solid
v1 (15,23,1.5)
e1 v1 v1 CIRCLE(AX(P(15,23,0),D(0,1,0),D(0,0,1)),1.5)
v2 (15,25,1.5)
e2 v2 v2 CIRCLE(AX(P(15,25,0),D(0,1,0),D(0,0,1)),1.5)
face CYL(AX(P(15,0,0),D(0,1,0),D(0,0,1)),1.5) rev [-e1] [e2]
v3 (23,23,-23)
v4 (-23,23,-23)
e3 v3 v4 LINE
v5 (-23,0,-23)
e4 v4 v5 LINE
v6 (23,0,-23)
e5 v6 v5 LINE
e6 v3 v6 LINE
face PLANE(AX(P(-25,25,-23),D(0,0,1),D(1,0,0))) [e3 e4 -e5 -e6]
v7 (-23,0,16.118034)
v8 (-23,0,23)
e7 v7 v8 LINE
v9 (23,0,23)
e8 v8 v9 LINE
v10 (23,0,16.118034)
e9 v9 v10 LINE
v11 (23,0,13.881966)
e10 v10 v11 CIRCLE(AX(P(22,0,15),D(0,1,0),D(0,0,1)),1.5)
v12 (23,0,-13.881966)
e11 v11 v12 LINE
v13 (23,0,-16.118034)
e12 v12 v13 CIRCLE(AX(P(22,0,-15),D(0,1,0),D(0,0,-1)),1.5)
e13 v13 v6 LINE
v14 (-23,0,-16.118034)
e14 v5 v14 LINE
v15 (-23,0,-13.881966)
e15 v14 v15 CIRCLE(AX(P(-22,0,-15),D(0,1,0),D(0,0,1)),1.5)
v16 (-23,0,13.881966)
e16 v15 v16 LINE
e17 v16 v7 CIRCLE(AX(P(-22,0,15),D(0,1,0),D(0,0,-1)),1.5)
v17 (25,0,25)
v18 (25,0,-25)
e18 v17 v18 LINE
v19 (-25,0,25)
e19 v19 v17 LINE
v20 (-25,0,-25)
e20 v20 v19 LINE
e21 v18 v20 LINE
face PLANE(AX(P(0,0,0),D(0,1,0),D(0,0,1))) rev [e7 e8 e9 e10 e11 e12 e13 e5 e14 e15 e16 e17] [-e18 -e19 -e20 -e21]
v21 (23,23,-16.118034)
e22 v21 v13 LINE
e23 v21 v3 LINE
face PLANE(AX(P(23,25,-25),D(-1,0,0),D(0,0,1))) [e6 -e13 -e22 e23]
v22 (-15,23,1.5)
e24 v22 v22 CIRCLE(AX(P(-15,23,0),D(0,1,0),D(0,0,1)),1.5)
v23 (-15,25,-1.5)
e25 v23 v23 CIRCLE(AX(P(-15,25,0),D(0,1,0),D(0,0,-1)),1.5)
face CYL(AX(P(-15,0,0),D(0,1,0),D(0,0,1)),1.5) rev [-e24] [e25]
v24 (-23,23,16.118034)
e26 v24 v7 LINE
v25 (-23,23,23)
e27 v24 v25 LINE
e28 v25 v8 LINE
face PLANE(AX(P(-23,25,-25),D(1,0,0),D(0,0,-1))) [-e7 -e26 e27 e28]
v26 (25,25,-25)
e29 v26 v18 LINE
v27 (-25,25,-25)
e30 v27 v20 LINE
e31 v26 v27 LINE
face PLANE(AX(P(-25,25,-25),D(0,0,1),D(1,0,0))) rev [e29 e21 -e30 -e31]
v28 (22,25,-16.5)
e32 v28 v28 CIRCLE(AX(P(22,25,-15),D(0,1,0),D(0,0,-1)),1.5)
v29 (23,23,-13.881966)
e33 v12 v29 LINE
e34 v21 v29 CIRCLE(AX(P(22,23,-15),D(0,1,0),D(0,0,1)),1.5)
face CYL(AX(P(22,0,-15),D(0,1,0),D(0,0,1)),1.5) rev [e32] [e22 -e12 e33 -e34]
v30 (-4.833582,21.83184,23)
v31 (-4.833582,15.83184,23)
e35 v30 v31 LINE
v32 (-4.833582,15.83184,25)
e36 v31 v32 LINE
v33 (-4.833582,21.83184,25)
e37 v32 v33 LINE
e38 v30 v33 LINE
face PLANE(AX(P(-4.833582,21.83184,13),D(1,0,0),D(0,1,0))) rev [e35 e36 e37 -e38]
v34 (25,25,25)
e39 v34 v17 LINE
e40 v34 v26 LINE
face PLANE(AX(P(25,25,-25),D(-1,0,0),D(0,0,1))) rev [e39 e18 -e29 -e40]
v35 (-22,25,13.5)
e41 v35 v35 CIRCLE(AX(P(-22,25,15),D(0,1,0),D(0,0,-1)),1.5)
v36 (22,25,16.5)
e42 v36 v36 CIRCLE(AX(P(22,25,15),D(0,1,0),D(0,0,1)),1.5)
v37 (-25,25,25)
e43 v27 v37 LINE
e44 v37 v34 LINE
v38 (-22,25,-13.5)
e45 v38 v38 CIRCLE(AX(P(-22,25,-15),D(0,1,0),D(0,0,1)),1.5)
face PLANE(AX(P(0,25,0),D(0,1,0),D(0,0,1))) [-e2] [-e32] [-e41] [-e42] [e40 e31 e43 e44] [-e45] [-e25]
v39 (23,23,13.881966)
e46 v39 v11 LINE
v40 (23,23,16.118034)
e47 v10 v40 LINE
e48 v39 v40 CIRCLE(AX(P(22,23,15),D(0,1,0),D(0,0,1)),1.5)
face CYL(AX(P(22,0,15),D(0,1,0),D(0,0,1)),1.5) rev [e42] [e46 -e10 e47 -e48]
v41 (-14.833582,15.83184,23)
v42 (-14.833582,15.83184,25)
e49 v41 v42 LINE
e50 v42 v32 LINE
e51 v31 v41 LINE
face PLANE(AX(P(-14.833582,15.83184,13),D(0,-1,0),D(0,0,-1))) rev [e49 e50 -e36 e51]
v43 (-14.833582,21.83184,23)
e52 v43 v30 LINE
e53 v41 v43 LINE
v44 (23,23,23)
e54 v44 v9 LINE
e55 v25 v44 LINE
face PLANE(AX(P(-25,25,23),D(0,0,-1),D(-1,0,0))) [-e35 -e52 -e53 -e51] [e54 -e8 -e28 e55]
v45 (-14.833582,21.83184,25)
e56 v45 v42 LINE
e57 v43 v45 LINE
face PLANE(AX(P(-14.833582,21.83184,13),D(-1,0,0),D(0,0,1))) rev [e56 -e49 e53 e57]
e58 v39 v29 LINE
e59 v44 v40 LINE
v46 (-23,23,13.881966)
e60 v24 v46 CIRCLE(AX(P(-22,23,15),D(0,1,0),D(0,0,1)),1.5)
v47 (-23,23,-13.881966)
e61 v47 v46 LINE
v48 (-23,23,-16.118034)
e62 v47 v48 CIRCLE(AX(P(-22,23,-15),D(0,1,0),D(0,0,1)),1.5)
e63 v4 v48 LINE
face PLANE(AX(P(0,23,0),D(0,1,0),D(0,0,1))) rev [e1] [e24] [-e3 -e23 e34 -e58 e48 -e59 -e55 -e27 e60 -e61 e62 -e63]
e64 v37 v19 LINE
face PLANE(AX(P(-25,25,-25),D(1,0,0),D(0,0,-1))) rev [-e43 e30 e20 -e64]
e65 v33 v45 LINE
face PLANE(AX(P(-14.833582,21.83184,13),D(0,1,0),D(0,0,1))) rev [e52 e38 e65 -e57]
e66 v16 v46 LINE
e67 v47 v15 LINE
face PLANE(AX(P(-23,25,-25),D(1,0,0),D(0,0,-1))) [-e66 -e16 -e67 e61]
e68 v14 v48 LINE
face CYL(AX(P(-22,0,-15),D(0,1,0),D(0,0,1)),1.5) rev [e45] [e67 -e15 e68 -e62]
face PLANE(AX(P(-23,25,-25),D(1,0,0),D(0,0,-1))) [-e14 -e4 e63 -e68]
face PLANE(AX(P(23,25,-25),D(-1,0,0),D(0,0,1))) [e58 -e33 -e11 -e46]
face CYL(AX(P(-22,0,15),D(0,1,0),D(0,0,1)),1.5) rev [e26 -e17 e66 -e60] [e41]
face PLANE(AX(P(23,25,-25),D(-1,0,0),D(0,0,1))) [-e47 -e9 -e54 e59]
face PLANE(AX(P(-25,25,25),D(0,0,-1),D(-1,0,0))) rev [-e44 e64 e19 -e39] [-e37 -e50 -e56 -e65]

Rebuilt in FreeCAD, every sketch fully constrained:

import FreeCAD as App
import Part
import Sketcher
Q = App.Units.Quantity


def faces_at(feature, points):
    """Names of the faces that lie closest to the given points."""
    faces = feature.Shape.Faces
    near = lambda p: min(range(len(faces)), key=lambda i: faces[i].distToShape(Part.Vertex(*p))[0])
    return sorted({f"Face{near(p) + 1}" for p in points})

doc = App.newDocument("Part")
body = doc.addObject("PartDesign::Body", "Body")

# Sketch on XZ plane
sketch1 = body.newObject("Sketcher::SketchObject", "Sketch")
sketch1.AttachmentSupport = (doc.getObject("XZ_Plane"), [""])
sketch1.MapMode = "FlatFace"
sketch1.addGeometry([
    Part.LineSegment(App.Vector(-25, -25, 0), App.Vector(-25, 25, 0)),
    Part.LineSegment(App.Vector(-25, 25, 0), App.Vector(25, 25, 0)),
    Part.LineSegment(App.Vector(25, 25, 0), App.Vector(25, -25, 0)),
    Part.LineSegment(App.Vector(25, -25, 0), App.Vector(-25, -25, 0)),
], False)
sketch1.addConstraint([
    Sketcher.Constraint("Coincident", 0, 2, 1, 1),
    Sketcher.Constraint("Coincident", 1, 2, 2, 1),
    Sketcher.Constraint("Coincident", 2, 2, 3, 1),
    Sketcher.Constraint("Coincident", 3, 2, 0, 1),
    Sketcher.Constraint("Vertical", 0),
    Sketcher.Constraint("Horizontal", 1),
    Sketcher.Constraint("Vertical", 2),
    Sketcher.Constraint("Horizontal", 3),
    Sketcher.Constraint("Symmetric", 0, 2, 2, 2, -1, 1),
    Sketcher.Constraint("Equal", 3, 0),
    Sketcher.Constraint("DistanceX", 1, 1, 1, 2, Q("50 mm")),
])
pad1 = body.newObject("PartDesign::Pad", "Pad")
pad1.Profile = sketch1
pad1.Length = 25
pad1.Reversed = True
doc.recompute()

thickness = body.newObject("PartDesign::Thickness", "Thickness")
thickness.Base = (pad1, faces_at(pad1, [(0, 0, 0)]))
thickness.Value = 2
thickness.Reversed = True
thickness.Join = "Intersection"

# Sketch on XY plane
sketch2 = body.newObject("Sketcher::SketchObject", "Sketch001")
sketch2.AttachmentSupport = (doc.getObject("XY_Plane"), [""])
sketch2.MapMode = "FlatFace"
sketch2.AttachmentOffset = App.Placement(App.Vector(0, 0, 25), App.Rotation())
sketch2.addGeometry([
    Part.LineSegment(App.Vector(-15, 22, 0), App.Vector(-15, 16, 0)),
    Part.LineSegment(App.Vector(-15, 16, 0), App.Vector(-5, 16, 0)),
    Part.LineSegment(App.Vector(-5, 16, 0), App.Vector(-5, 22, 0)),
    Part.LineSegment(App.Vector(-5, 22, 0), App.Vector(-15, 22, 0)),
], False)
sketch2.addConstraint([
    Sketcher.Constraint("Coincident", 0, 2, 1, 1),
    Sketcher.Constraint("Coincident", 1, 2, 2, 1),
    Sketcher.Constraint("Coincident", 2, 2, 3, 1),
    Sketcher.Constraint("Coincident", 3, 2, 0, 1),
    Sketcher.Constraint("Vertical", 0),
    Sketcher.Constraint("Horizontal", 1),
    Sketcher.Constraint("Vertical", 2),
    Sketcher.Constraint("Horizontal", 3),
    Sketcher.Constraint("DistanceX", 1, 1, 1, 2, Q("10 mm")),
    Sketcher.Constraint("DistanceY", 0, 2, 0, 1, Q("6 mm")),
    Sketcher.Constraint("DistanceY", -1, 1, 0, 2, Q("15.83184 mm")),
    Sketcher.Constraint("DistanceX", 0, 2, -1, 1, Q("14.833582 mm")),
])
pocket1 = body.newObject("PartDesign::Pocket", "Pocket")
pocket1.Profile = sketch2
pocket1.Length = 12

# Sketch on XZ plane
sketch3 = body.newObject("Sketcher::SketchObject", "Sketch002")
sketch3.AttachmentSupport = (doc.getObject("XZ_Plane"), [""])
sketch3.MapMode = "FlatFace"
sketch3.AttachmentOffset = App.Placement(App.Vector(0, 0, -25), App.Rotation())
sketch3.addGeometry([
    Part.Circle(App.Vector(15, 0, 0), App.Vector(0, 0, 1), 1.5),  # 0
    Part.Circle(App.Vector(-15, 0, 0), App.Vector(0, 0, 1), 1.5),  # 1
    Part.Circle(App.Vector(-22, -15, 0), App.Vector(0, 0, 1), 1.5),  # 2
    Part.Circle(App.Vector(22, -15, 0), App.Vector(0, 0, 1), 1.5),  # 3
    Part.Circle(App.Vector(22, 15, 0), App.Vector(0, 0, 1), 1.5),  # 4
    Part.Circle(App.Vector(-22, 15, 0), App.Vector(0, 0, 1), 1.5),  # 5
], False)
sketch3.addConstraint([
    Sketcher.Constraint("Equal", 0, 1),
    Sketcher.Constraint("Equal", 1, 2),
    Sketcher.Constraint("Equal", 2, 3),
    Sketcher.Constraint("Equal", 3, 4),
    Sketcher.Constraint("Equal", 4, 5),
    Sketcher.Constraint("Symmetric", 0, 3, 1, 3, -1, 1),
    Sketcher.Constraint("Symmetric", 2, 3, 4, 3, -1, 1),
    Sketcher.Constraint("Symmetric", 3, 3, 5, 3, -1, 1),
    Sketcher.Constraint("Symmetric", 2, 3, 3, 3, -2),
    Sketcher.Constraint("PointOnObject", 0, 3, -1),
    Sketcher.Constraint("Diameter", 0, Q("3 mm")),
    Sketcher.Constraint("DistanceX", -1, 1, 0, 3, Q("15 mm")),
    Sketcher.Constraint("DistanceX", 2, 3, -1, 1, Q("22 mm")),
    Sketcher.Constraint("DistanceY", 2, 3, -1, 1, Q("15 mm")),
])
pocket2 = body.newObject("PartDesign::Pocket", "Pocket001")
pocket2.Profile = sketch3
pocket2.Type = "ThroughAll"
pocket2.Reversed = True

doc.recompute()
